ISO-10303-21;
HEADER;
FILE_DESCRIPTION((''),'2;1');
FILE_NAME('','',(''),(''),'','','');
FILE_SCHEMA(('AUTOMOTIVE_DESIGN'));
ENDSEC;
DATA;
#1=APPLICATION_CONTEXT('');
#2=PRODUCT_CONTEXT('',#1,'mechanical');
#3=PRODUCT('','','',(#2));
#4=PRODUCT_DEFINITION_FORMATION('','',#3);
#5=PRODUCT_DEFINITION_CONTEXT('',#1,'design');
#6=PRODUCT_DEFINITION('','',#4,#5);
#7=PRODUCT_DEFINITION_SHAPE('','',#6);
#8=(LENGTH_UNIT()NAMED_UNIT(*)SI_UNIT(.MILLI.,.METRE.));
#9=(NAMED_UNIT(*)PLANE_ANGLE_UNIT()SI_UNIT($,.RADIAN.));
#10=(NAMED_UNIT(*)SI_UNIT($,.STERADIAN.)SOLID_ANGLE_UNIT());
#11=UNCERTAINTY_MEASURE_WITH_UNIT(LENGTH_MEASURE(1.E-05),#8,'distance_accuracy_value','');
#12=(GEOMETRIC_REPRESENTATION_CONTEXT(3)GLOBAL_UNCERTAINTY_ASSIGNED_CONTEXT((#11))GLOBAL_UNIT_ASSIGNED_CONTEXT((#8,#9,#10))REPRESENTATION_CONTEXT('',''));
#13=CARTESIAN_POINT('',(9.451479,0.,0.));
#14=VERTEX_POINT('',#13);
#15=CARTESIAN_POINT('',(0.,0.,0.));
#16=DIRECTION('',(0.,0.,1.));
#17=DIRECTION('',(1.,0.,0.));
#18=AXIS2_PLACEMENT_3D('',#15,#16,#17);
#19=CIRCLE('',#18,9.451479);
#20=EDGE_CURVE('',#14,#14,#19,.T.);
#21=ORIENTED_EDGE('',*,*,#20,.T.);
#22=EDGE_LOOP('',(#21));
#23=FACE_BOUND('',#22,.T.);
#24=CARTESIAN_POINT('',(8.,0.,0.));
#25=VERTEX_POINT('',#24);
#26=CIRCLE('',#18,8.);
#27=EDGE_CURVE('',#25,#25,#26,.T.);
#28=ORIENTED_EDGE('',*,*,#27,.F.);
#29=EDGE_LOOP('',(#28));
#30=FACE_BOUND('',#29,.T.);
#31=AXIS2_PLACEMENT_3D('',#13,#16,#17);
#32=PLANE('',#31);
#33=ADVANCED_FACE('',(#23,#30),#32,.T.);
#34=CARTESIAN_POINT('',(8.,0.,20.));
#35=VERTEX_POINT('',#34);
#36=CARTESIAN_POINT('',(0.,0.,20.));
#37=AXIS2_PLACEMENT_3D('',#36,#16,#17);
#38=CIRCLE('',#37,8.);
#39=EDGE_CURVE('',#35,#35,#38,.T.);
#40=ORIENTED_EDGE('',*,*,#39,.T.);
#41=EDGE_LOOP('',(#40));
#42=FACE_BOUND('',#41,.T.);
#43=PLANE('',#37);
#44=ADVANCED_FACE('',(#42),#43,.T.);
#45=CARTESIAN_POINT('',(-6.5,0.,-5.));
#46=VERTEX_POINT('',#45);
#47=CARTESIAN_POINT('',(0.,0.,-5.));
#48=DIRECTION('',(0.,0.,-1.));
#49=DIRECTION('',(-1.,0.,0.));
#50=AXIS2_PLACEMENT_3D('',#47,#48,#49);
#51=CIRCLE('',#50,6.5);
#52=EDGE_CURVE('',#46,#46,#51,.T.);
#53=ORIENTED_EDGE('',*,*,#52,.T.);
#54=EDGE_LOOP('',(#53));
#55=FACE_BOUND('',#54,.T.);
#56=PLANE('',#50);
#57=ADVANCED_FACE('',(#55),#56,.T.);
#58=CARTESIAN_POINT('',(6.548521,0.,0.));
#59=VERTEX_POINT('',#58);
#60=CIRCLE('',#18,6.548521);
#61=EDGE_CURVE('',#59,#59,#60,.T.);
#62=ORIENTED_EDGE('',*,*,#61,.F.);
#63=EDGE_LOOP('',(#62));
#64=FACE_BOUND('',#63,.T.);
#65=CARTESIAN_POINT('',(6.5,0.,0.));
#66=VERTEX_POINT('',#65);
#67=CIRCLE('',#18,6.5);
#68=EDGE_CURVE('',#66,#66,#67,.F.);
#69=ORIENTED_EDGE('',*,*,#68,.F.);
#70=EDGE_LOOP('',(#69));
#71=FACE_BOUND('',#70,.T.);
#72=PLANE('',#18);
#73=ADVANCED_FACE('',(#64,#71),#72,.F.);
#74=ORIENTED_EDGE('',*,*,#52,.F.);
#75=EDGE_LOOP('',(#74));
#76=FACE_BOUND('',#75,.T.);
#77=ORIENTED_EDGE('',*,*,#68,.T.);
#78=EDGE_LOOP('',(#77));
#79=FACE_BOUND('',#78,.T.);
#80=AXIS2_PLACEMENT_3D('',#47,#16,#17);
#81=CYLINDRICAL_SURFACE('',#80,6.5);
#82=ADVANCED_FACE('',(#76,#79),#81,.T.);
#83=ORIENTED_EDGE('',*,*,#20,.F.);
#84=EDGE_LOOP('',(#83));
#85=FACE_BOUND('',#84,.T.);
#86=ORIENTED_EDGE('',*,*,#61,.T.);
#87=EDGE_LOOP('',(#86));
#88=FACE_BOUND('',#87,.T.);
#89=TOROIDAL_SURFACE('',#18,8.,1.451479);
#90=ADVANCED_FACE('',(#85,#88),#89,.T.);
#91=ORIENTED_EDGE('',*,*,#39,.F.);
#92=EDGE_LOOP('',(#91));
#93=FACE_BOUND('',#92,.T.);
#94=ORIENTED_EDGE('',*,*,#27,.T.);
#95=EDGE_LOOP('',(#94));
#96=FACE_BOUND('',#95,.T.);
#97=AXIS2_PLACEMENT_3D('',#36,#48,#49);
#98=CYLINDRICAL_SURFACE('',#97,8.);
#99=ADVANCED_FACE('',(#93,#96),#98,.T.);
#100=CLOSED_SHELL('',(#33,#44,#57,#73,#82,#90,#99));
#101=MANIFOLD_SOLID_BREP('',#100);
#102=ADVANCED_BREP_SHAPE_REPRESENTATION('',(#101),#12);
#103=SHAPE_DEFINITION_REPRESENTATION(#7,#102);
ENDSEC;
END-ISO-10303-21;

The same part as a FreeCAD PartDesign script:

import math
import FreeCAD as App
import Part
import Sketcher

V = App.Vector

doc = App.newDocument("Part")
body = doc.addObject("PartDesign::Body", "Body")

# Sketch on XY plane
sketch1 = body.newObject("Sketcher::SketchObject", "Sketch")
sketch1.AttachmentSupport = (doc.getObject("XY_Plane"), [""])
sketch1.MapMode = "FlatFace"
sketch1.addGeometry(Part.Circle(V(0, 0, 0), V(0, 0, 1), 8), False)
sketch1.addConstraint([
    Sketcher.Constraint("Coincident", 0, 3, -1, 1),
    Sketcher.Constraint("Diameter", 0, 16.0),
])
pad1 = body.newObject("PartDesign::Pad", "Pad")
pad1.Profile = sketch1
pad1.Length = 20

# Sketch on XZ plane
sketch2 = body.newObject("Sketcher::SketchObject", "Sketch001")
sketch2.AttachmentSupport = (doc.getObject("XZ_Plane"), [""])
sketch2.MapMode = "FlatFace"
sketch2.addGeometry([
    Part.LineSegment(V(6.5, 0, 0), V(9.5, 0, 0)),
    Part.ArcOfCircle(Part.Circle(V(8, 0, 0), V(0, 0, 1), 1.5), math.radians(180), math.radians(360)),
], False)
sketch2.addConstraint([
    Sketcher.Constraint("Coincident", 0, 1, 1, 1),
    Sketcher.Constraint("Coincident", 1, 2, 0, 2),
    Sketcher.Constraint("Horizontal", 0),
    Sketcher.Constraint("PointOnObject", 1, 3, -1),
    Sketcher.Constraint("PointOnObject", 0, 1, -1),
    Sketcher.Constraint("DistanceX", -1, 1, 1, 3, 8.0),
    Sketcher.Constraint("Radius", 1, 1.451479),
])
revolution = body.newObject("PartDesign::Revolution", "Revolution")
revolution.Profile = sketch2
revolution.ReferenceAxis = (sketch2, ["V_Axis"])
revolution.Angle = 360

# Sketch on XY plane
sketch3 = body.newObject("Sketcher::SketchObject", "Sketch002")
sketch3.AttachmentSupport = (doc.getObject("XY_Plane"), [""])
sketch3.MapMode = "FlatFace"
sketch3.addGeometry(Part.Circle(V(0, 0, 0), V(0, 0, 1), 6), False)
sketch3.addConstraint([
    Sketcher.Constraint("Coincident", 0, 3, -1, 1),
    Sketcher.Constraint("Diameter", 0, 13.0),
])
pad2 = body.newObject("PartDesign::Pad", "Pad001")
pad2.Profile = sketch3
pad2.Length = 5
pad2.Reversed = True

doc.recompute()
